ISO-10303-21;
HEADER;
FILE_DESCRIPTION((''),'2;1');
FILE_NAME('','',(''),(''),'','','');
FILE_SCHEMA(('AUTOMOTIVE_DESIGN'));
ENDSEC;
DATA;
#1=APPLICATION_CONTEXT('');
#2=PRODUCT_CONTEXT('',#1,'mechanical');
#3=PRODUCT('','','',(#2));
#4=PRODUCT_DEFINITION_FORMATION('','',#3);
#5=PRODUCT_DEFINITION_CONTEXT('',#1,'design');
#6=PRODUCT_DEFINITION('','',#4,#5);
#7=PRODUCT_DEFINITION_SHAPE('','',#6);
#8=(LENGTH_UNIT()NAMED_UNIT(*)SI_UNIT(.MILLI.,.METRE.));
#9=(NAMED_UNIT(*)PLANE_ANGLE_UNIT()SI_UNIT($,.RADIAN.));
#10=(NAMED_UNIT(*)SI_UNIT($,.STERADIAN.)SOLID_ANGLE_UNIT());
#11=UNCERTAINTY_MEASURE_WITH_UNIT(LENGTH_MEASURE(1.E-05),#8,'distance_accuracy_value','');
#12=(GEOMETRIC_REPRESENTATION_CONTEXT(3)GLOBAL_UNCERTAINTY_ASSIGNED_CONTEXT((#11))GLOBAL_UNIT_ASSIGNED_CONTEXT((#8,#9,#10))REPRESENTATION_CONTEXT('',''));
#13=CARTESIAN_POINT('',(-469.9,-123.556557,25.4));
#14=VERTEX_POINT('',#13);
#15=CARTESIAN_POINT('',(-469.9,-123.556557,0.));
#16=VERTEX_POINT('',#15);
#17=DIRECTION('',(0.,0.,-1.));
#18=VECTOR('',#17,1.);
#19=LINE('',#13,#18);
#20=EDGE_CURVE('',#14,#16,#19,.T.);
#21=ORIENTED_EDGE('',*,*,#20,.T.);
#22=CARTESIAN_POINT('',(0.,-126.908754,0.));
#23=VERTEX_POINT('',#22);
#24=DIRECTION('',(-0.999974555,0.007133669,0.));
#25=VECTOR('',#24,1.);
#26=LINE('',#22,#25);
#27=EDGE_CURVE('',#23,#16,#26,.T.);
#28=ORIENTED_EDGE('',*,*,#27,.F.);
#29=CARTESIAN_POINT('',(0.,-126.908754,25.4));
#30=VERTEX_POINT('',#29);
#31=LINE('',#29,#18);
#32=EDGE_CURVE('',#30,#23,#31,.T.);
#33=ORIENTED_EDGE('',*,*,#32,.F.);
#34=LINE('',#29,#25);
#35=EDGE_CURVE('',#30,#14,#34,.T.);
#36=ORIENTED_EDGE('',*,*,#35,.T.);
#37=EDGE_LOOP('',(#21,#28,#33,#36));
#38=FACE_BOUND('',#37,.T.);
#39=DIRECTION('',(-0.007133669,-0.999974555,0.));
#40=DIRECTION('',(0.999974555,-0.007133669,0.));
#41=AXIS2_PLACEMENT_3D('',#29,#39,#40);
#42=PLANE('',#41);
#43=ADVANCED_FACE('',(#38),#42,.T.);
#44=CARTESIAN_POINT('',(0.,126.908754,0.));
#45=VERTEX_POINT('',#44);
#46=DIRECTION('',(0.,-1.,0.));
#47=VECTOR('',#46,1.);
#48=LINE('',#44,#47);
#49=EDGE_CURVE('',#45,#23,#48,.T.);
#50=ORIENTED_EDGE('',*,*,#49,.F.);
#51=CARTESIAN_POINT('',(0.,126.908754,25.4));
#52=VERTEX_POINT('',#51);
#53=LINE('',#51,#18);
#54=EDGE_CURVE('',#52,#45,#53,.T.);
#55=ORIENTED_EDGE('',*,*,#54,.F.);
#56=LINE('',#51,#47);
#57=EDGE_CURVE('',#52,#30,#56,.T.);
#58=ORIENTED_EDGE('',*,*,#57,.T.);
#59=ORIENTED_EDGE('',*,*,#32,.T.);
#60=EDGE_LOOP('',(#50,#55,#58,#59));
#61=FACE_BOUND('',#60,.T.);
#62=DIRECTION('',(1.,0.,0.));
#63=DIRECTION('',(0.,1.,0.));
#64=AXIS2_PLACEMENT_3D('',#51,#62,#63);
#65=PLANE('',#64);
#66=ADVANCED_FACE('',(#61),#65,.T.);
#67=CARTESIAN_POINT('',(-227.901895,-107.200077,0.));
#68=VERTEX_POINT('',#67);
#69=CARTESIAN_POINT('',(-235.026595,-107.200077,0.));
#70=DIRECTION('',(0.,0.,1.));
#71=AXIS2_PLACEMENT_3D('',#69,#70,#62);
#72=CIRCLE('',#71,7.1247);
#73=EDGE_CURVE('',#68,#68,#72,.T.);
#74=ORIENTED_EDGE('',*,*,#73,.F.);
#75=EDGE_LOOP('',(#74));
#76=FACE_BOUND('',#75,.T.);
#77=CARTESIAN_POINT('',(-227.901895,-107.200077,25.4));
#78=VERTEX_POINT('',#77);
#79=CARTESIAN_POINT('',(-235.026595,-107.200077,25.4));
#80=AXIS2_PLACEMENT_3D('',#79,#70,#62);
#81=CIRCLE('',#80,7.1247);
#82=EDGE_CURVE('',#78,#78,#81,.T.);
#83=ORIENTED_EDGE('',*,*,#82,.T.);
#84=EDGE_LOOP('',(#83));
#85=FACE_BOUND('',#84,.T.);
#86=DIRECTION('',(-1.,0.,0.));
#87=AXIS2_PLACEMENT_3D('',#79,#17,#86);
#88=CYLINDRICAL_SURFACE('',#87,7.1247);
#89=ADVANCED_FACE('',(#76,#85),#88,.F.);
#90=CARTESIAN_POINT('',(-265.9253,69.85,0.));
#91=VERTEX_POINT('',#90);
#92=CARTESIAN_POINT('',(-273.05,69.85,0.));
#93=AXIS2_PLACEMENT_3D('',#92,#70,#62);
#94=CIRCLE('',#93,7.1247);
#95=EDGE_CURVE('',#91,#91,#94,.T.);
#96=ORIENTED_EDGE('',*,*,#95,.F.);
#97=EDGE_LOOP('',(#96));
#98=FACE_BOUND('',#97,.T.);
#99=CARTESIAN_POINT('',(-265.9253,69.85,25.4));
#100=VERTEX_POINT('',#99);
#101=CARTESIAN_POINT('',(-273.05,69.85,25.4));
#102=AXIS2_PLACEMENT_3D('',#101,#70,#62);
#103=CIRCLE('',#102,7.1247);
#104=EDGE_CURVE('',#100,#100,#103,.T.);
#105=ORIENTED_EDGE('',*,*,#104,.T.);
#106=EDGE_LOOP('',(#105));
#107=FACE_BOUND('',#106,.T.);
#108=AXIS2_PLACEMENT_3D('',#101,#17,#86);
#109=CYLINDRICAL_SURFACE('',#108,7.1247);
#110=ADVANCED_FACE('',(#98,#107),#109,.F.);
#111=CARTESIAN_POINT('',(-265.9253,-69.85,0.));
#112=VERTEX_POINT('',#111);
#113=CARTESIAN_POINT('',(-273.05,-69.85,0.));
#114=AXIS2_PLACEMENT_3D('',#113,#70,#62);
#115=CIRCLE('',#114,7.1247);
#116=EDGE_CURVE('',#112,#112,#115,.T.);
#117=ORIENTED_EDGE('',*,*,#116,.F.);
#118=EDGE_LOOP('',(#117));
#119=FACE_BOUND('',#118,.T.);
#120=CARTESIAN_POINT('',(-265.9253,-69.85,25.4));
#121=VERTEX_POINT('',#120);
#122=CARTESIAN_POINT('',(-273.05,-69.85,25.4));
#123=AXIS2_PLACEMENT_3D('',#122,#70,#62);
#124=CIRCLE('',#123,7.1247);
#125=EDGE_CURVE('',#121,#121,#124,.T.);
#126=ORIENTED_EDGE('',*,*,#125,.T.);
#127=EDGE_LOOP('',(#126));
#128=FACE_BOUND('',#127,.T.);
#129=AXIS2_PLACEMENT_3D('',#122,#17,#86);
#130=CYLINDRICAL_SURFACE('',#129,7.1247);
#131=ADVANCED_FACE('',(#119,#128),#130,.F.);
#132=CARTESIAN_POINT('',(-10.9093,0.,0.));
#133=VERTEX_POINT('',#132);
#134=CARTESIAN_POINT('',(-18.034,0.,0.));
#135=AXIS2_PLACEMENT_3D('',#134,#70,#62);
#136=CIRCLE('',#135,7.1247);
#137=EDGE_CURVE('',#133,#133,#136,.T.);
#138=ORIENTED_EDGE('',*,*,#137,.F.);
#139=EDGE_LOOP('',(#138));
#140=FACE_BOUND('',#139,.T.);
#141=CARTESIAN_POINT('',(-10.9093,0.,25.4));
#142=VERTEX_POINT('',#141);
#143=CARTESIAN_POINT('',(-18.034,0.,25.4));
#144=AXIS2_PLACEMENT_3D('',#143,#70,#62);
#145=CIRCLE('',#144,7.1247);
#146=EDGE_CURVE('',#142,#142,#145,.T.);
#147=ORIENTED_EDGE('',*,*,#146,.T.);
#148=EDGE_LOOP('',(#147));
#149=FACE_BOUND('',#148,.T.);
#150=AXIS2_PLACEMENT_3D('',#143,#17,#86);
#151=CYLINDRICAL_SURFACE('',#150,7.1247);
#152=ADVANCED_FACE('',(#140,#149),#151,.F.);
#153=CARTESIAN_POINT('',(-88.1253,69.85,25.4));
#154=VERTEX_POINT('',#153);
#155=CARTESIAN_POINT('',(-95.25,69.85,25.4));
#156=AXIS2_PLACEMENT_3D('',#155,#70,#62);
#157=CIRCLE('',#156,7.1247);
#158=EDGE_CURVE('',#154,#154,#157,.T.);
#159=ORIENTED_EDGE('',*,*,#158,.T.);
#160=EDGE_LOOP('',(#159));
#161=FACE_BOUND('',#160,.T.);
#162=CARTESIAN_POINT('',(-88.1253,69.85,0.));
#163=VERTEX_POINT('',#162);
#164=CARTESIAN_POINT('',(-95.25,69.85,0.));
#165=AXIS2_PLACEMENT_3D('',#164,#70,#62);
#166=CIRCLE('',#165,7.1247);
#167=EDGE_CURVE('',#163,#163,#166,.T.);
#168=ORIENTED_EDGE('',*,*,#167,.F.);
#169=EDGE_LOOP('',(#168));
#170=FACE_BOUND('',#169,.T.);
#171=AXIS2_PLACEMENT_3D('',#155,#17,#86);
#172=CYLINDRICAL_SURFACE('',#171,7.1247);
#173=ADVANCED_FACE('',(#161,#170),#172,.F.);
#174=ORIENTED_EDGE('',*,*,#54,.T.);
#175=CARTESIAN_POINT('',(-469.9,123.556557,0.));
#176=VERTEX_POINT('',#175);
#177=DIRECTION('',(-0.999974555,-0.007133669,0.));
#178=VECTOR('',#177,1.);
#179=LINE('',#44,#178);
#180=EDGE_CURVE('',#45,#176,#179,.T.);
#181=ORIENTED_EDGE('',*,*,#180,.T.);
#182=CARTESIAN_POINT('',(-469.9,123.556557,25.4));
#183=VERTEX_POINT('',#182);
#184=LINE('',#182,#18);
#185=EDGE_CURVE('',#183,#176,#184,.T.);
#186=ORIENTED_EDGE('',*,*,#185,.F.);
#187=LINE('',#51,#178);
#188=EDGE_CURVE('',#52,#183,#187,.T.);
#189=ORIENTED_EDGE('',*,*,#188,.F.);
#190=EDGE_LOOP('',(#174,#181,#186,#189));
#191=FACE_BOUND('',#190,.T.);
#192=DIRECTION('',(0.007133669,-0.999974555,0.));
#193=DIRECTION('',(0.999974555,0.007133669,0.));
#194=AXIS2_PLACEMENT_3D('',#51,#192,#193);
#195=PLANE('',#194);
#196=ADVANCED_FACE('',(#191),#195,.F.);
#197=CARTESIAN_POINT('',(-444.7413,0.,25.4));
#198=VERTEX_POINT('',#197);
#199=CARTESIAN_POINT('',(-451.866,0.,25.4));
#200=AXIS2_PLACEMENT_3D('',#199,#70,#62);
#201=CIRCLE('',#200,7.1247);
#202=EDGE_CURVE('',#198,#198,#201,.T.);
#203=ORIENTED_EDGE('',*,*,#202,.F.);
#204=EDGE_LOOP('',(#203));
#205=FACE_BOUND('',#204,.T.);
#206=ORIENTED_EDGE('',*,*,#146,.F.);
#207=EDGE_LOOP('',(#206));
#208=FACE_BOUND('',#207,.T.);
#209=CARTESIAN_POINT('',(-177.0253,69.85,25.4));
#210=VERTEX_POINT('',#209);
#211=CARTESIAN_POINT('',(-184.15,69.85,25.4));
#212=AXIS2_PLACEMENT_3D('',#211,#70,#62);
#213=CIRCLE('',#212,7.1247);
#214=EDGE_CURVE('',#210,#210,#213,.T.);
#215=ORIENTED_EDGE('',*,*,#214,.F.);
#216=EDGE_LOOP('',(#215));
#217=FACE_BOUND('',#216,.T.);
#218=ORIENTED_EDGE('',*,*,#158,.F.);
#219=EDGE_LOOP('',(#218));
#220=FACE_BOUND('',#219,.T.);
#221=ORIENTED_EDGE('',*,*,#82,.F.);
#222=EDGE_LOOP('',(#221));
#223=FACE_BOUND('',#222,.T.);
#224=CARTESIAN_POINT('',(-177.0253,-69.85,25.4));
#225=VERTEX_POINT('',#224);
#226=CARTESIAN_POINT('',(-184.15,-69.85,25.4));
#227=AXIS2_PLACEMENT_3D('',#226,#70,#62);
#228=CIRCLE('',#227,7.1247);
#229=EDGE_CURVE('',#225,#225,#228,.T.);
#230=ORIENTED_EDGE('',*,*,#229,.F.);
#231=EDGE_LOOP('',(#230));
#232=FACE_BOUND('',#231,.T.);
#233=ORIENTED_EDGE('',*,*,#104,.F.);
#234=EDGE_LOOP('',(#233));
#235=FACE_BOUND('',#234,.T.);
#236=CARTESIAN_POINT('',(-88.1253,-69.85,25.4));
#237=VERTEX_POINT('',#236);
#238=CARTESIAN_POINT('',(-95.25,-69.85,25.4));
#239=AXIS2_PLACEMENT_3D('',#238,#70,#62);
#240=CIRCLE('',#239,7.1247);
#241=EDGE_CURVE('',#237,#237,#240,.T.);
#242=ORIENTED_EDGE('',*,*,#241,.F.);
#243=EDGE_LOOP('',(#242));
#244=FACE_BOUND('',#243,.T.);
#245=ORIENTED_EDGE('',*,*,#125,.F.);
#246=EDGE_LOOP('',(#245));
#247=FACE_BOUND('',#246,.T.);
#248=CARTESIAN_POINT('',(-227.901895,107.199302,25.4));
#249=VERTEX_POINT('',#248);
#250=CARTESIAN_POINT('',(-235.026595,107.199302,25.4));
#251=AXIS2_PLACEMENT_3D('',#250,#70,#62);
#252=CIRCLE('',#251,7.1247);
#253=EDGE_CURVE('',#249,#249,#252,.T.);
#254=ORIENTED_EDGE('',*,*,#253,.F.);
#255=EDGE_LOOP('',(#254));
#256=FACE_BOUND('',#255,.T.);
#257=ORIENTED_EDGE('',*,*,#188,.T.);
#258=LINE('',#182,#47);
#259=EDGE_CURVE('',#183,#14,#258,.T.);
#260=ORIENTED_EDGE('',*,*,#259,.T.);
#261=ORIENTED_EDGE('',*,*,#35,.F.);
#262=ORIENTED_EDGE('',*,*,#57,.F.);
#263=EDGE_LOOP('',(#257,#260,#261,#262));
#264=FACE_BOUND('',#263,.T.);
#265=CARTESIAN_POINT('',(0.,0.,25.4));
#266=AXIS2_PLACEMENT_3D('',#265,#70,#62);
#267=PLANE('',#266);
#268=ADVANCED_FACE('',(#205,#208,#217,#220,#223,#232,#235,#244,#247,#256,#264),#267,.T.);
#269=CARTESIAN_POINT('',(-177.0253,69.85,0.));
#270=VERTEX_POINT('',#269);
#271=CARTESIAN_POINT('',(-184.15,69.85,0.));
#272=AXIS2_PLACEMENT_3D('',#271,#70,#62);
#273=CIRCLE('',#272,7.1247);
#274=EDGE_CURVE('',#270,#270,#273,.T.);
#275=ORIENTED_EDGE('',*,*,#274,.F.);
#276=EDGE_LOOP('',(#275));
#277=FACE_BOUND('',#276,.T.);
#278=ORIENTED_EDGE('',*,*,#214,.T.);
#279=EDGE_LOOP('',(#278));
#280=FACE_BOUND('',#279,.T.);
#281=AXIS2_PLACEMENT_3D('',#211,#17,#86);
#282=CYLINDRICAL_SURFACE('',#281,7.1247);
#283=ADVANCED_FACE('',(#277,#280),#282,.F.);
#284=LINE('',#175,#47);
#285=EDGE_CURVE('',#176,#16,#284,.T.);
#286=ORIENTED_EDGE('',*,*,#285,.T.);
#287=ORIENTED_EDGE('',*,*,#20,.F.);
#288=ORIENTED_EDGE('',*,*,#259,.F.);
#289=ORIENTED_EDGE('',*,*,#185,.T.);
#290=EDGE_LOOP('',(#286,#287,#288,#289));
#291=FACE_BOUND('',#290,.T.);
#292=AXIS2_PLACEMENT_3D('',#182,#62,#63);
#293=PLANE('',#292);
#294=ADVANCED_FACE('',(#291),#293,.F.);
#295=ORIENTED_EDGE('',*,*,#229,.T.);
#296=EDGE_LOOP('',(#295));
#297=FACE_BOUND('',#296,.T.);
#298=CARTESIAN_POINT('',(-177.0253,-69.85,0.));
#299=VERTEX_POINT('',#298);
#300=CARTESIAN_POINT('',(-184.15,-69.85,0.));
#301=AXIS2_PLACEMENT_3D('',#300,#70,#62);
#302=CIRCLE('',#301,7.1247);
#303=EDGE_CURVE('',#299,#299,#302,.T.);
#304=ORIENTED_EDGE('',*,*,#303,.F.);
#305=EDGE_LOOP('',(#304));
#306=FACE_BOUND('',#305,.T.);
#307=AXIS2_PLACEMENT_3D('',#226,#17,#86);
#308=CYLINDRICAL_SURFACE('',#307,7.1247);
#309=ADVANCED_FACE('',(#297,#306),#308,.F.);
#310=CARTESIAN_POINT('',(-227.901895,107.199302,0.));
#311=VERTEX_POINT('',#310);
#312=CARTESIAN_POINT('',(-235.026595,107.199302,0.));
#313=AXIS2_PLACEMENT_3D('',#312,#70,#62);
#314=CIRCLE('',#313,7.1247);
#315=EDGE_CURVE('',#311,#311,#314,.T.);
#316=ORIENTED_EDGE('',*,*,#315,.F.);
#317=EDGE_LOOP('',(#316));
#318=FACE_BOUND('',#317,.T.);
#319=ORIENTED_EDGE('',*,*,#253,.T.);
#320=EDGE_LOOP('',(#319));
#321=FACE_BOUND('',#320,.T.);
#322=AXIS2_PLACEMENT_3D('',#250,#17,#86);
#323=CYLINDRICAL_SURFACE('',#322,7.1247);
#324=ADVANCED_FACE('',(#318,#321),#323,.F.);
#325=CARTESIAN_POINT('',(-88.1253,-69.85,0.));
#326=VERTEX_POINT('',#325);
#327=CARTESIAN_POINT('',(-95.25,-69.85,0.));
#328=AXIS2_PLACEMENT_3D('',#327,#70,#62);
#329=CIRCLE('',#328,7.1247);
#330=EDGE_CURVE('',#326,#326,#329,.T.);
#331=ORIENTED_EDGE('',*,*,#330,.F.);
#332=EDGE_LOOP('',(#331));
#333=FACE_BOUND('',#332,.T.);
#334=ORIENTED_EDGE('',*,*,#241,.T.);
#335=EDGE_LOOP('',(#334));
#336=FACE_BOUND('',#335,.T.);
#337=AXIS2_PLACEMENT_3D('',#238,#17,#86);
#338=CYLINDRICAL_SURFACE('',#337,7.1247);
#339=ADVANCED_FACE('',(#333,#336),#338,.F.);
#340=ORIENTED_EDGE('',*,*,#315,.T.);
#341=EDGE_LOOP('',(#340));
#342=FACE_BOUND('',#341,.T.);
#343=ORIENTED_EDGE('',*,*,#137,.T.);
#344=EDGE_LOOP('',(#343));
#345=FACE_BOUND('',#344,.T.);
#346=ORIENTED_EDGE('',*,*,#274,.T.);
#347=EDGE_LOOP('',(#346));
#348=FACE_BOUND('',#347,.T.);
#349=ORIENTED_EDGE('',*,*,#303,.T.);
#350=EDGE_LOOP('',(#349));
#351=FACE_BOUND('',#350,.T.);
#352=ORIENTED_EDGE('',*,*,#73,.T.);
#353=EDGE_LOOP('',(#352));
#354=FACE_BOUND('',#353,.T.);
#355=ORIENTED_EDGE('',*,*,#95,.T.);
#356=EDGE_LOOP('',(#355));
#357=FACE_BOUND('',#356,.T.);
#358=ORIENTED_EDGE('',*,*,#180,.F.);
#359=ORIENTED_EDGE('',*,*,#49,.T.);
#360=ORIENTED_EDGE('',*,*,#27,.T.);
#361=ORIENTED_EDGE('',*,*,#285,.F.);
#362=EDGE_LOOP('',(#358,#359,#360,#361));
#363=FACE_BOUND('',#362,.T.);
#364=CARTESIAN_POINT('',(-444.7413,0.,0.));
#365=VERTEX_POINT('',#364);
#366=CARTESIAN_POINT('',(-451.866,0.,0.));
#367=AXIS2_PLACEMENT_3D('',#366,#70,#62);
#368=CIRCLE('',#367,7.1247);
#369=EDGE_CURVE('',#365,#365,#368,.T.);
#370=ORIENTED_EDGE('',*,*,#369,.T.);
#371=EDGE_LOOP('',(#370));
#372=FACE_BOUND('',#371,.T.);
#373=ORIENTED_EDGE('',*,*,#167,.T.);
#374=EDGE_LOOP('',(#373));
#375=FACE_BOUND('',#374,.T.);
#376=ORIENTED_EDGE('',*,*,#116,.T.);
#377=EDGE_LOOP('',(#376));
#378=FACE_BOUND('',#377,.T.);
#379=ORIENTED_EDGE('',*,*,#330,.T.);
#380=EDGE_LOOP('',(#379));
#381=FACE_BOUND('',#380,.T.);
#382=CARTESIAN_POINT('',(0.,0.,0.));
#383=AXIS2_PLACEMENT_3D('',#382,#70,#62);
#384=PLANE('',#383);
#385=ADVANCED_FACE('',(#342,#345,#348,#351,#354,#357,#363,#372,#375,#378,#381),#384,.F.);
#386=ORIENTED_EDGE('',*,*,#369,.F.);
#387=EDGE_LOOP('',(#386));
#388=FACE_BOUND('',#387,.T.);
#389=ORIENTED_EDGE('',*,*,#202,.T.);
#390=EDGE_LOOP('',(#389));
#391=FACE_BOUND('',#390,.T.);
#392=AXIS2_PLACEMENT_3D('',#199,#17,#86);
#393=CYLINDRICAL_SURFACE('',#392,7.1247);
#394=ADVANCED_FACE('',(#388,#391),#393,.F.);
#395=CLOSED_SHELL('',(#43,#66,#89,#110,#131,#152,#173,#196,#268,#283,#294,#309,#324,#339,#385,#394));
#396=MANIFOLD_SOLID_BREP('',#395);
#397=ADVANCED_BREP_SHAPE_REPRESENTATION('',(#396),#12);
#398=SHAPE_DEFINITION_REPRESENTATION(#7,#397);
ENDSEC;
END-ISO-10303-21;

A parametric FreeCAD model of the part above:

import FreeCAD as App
import Part
import Sketcher
from FreeCAD import Vector
Q = App.Units.Quantity


def add_polygon(sketch, points):
    """Adds a closed chain of lines whose ends are joined by coincident constraints."""
    first, n = sketch.GeometryCount, len(points)
    for a, b in zip(points, points[1:] + points[:1]):
        sketch.addGeometry(Part.LineSegment(App.Vector(*a, 0), App.Vector(*b, 0)), False)
    for i in range(n):
        sketch.addConstraint(Sketcher.Constraint("Coincident", first + i, 2, first + (i + 1) % n, 1))

doc = App.newDocument("Part")
body = doc.addObject("PartDesign::Body", "Body")

# Sketch on XY plane
sketch1 = body.newObject("Sketcher::SketchObject", "Sketch")
sketch1.AttachmentSupport = (doc.getObject("XY_Plane"), [""])
sketch1.MapMode = "FlatFace"
add_polygon(sketch1, [(-470, -124), (0, -127), (0, 127), (-470, 124)])  # lines 0-3
sketch1.addConstraint(Sketcher.Constraint("Vertical", 1))
sketch1.addConstraint(Sketcher.Constraint("Vertical", 3))
sketch1.addConstraint(Sketcher.Constraint("Symmetric", 0, 2, 1, 2, -1, 1))
sketch1.addConstraint(Sketcher.Constraint("Equal", 0, 2))
sketch1.addConstraint(Sketcher.Constraint("DistanceX", 2, 2, -1, 1, Q("18.5 in")))
sketch1.addConstraint(Sketcher.Constraint("DistanceY", 1, 1, 1, 2, Q("253.817508 mm")))
sketch1.addConstraint(Sketcher.Constraint("DistanceY", 3, 2, 3, 1, Q("247.113115 mm")))
pad1 = body.newObject("PartDesign::Pad", "Pad")
pad1.Profile = sketch1
pad1.Length = Q("1 in")

# Sketch on XY plane
sketch2 = body.newObject("Sketcher::SketchObject", "Sketch001")
sketch2.AttachmentSupport = (doc.getObject("XY_Plane"), [""])
sketch2.MapMode = "FlatFace"
sketch2.addGeometry(Part.Circle(Vector(-235, 107, 0), Vector(0, 0, 1), 7), False)
sketch2.addConstraint(Sketcher.Constraint("Diameter", 0, Q("0.561 in")))
sketch2.addConstraint(Sketcher.Constraint("DistanceY", -1, 1, 0, 3, Q("107.199302 mm")))
sketch2.addConstraint(Sketcher.Constraint("DistanceX", 0, 3, -1, 1, Q("235.026595 mm")))
pocket1 = body.newObject("PartDesign::Pocket", "Pocket")
pocket1.Profile = sketch2
pocket1.Length = Q("1 in")
pocket1.Reversed = True

# Sketch on XY plane
sketch3 = body.newObject("Sketcher::SketchObject", "Sketch002")
sketch3.AttachmentSupport = (doc.getObject("XY_Plane"), [""])
sketch3.MapMode = "FlatFace"
sketch3.addGeometry(Part.Circle(Vector(-18, 0, 0), Vector(0, 0, 1), 7), False)
sketch3.addConstraint(Sketcher.Constraint("PointOnObject", 0, 3, -1))
sketch3.addConstraint(Sketcher.Constraint("Diameter", 0, Q("0.561 in")))
sketch3.addConstraint(Sketcher.Constraint("DistanceX", 0, 3, -1, 1, Q("0.71 in")))
pocket2 = body.newObject("PartDesign::Pocket", "Pocket001")
pocket2.Profile = sketch3
pocket2.Length = Q("1 in")
pocket2.Reversed = True

# Sketch on XY plane
sketch4 = body.newObject("Sketcher::SketchObject", "Sketch003")
sketch4.AttachmentSupport = (doc.getObject("XY_Plane"), [""])
sketch4.MapMode = "FlatFace"
sketch4.addGeometry(Part.Circle(Vector(-452, 0, 0), Vector(0, 0, 1), 7), False)
sketch4.addConstraint(Sketcher.Constraint("PointOnObject", 0, 3, -1))
sketch4.addConstraint(Sketcher.Constraint("Diameter", 0, Q("0.561 in")))
sketch4.addConstraint(Sketcher.Constraint("DistanceX", 0, 3, -1, 1, Q("17.79 in")))
pocket3 = body.newObject("PartDesign::Pocket", "Pocket002")
pocket3.Profile = sketch4
pocket3.Length = Q("1 in")
pocket3.Reversed = True

# Sketch on XY plane
sketch5 = body.newObject("Sketcher::SketchObject", "Sketch004")
sketch5.AttachmentSupport = (doc.getObject("XY_Plane"), [""])
sketch5.MapMode = "FlatFace"
sketch5.addGeometry(Part.Circle(Vector(-235, -107, 0), Vector(0, 0, 1), 7), False)
sketch5.addConstraint(Sketcher.Constraint("Diameter", 0, Q("0.561 in")))
sketch5.addConstraint(Sketcher.Constraint("DistanceX", 0, 3, -1, 1, Q("235.026595 mm")))
sketch5.addConstraint(Sketcher.Constraint("DistanceY", 0, 3, -1, 1, Q("107.200077 mm")))
pocket4 = body.newObject("PartDesign::Pocket", "Pocket003")
pocket4.Profile = sketch5
pocket4.Length = Q("1 in")
pocket4.Reversed = True

# Sketch on XY plane
sketch6 = body.newObject("Sketcher::SketchObject", "Sketch005")
sketch6.AttachmentSupport = (doc.getObject("XY_Plane"), [""])
sketch6.MapMode = "FlatFace"
sketch6.addGeometry(Part.Circle(Vector(-273, -70, 0), Vector(0, 0, 1), 7), False)
sketch6.addConstraint(Sketcher.Constraint("Diameter", 0, Q("0.561 in")))
sketch6.addConstraint(Sketcher.Constraint("DistanceX", 0, 3, -1, 1, Q("10.75 in")))
sketch6.addConstraint(Sketcher.Constraint("DistanceY", 0, 3, -1, 1, Q("2.75 in")))
pocket5 = body.newObject("PartDesign::Pocket", "Pocket004")
pocket5.Profile = sketch6
pocket5.Length = Q("1 in")
pocket5.Reversed = True

# Sketch on XY plane
sketch7 = body.newObject("Sketcher::SketchObject", "Sketch006")
sketch7.AttachmentSupport = (doc.getObject("XY_Plane"), [""])
sketch7.MapMode = "FlatFace"
sketch7.addGeometry(Part.Circle(Vector(-184, -70, 0), Vector(0, 0, 1), 7), False)
sketch7.addConstraint(Sketcher.Constraint("Diameter", 0, Q("0.561 in")))
sketch7.addConstraint(Sketcher.Constraint("DistanceX", 0, 3, -1, 1, Q("7.25 in")))
sketch7.addConstraint(Sketcher.Constraint("DistanceY", 0, 3, -1, 1, Q("2.75 in")))
pocket6 = body.newObject("PartDesign::Pocket", "Pocket005")
pocket6.Profile = sketch7
pocket6.Length = Q("1 in")
pocket6.Reversed = True

# Sketch on XY plane
sketch8 = body.newObject("Sketcher::SketchObject", "Sketch007")
sketch8.AttachmentSupport = (doc.getObject("XY_Plane"), [""])
sketch8.MapMode = "FlatFace"
sketch8.addGeometry(Part.Circle(Vector(-95, -70, 0), Vector(0, 0, 1), 7), False)
sketch8.addConstraint(Sketcher.Constraint("Diameter", 0, Q("0.561 in")))
sketch8.addConstraint(Sketcher.Constraint("DistanceX", 0, 3, -1, 1, Q("3.75 in")))
sketch8.addConstraint(Sketcher.Constraint("DistanceY", 0, 3, -1, 1, Q("2.75 in")))
pocket7 = body.newObject("PartDesign::Pocket", "Pocket006")
pocket7.Profile = sketch8
pocket7.Length = Q("1 in")
pocket7.Reversed = True

# Sketch on XY plane
sketch9 = body.newObject("Sketcher::SketchObject", "Sketch008")
sketch9.AttachmentSupport = (doc.getObject("XY_Plane"), [""])
sketch9.MapMode = "FlatFace"
sketch9.addGeometry(Part.Circle(Vector(-273, 70, 0), Vector(0, 0, 1), 7), False)
sketch9.addConstraint(Sketcher.Constraint("Diameter", 0, Q("0.561 in")))
sketch9.addConstraint(Sketcher.Constraint("DistanceX", 0, 3, -1, 1, Q("10.75 in")))
sketch9.addConstraint(Sketcher.Constraint("DistanceY", -1, 1, 0, 3, Q("2.75 in")))
pocket8 = body.newObject("PartDesign::Pocket", "Pocket007")
pocket8.Profile = sketch9
pocket8.Length = Q("1 in")
pocket8.Reversed = True

# Sketch on XY plane
sketch10 = body.newObject("Sketcher::SketchObject", "Sketch009")
sketch10.AttachmentSupport = (doc.getObject("XY_Plane"), [""])
sketch10.MapMode = "FlatFace"
sketch10.addGeometry(Part.Circle(Vector(-184, 70, 0), Vector(0, 0, 1), 7), False)
sketch10.addConstraint(Sketcher.Constraint("Diameter", 0, Q("0.561 in")))
sketch10.addConstraint(Sketcher.Constraint("DistanceX", 0, 3, -1, 1, Q("7.25 in")))
sketch10.addConstraint(Sketcher.Constraint("DistanceY", -1, 1, 0, 3, Q("2.75 in")))
pocket9 = body.newObject("PartDesign::Pocket", "Pocket008")
pocket9.Profile = sketch10
pocket9.Length = Q("1 in")
pocket9.Reversed = True

# Sketch on XY plane
sketch11 = body.newObject("Sketcher::SketchObject", "Sketch010")
sketch11.AttachmentSupport = (doc.getObject("XY_Plane"), [""])
sketch11.MapMode = "FlatFace"
sketch11.addGeometry(Part.Circle(Vector(-95, 70, 0), Vector(0, 0, 1), 7), False)
sketch11.addConstraint(Sketcher.Constraint("Diameter", 0, Q("0.561 in")))
sketch11.addConstraint(Sketcher.Constraint("DistanceX", 0, 3, -1, 1, Q("3.75 in")))
sketch11.addConstraint(Sketcher.Constraint("DistanceY", -1, 1, 0, 3, Q("2.75 in")))
pocket10 = body.newObject("PartDesign::Pocket", "Pocket009")
pocket10.Profile = sketch11
pocket10.Length = Q("1 in")
pocket10.Reversed = True

doc.recompute()
